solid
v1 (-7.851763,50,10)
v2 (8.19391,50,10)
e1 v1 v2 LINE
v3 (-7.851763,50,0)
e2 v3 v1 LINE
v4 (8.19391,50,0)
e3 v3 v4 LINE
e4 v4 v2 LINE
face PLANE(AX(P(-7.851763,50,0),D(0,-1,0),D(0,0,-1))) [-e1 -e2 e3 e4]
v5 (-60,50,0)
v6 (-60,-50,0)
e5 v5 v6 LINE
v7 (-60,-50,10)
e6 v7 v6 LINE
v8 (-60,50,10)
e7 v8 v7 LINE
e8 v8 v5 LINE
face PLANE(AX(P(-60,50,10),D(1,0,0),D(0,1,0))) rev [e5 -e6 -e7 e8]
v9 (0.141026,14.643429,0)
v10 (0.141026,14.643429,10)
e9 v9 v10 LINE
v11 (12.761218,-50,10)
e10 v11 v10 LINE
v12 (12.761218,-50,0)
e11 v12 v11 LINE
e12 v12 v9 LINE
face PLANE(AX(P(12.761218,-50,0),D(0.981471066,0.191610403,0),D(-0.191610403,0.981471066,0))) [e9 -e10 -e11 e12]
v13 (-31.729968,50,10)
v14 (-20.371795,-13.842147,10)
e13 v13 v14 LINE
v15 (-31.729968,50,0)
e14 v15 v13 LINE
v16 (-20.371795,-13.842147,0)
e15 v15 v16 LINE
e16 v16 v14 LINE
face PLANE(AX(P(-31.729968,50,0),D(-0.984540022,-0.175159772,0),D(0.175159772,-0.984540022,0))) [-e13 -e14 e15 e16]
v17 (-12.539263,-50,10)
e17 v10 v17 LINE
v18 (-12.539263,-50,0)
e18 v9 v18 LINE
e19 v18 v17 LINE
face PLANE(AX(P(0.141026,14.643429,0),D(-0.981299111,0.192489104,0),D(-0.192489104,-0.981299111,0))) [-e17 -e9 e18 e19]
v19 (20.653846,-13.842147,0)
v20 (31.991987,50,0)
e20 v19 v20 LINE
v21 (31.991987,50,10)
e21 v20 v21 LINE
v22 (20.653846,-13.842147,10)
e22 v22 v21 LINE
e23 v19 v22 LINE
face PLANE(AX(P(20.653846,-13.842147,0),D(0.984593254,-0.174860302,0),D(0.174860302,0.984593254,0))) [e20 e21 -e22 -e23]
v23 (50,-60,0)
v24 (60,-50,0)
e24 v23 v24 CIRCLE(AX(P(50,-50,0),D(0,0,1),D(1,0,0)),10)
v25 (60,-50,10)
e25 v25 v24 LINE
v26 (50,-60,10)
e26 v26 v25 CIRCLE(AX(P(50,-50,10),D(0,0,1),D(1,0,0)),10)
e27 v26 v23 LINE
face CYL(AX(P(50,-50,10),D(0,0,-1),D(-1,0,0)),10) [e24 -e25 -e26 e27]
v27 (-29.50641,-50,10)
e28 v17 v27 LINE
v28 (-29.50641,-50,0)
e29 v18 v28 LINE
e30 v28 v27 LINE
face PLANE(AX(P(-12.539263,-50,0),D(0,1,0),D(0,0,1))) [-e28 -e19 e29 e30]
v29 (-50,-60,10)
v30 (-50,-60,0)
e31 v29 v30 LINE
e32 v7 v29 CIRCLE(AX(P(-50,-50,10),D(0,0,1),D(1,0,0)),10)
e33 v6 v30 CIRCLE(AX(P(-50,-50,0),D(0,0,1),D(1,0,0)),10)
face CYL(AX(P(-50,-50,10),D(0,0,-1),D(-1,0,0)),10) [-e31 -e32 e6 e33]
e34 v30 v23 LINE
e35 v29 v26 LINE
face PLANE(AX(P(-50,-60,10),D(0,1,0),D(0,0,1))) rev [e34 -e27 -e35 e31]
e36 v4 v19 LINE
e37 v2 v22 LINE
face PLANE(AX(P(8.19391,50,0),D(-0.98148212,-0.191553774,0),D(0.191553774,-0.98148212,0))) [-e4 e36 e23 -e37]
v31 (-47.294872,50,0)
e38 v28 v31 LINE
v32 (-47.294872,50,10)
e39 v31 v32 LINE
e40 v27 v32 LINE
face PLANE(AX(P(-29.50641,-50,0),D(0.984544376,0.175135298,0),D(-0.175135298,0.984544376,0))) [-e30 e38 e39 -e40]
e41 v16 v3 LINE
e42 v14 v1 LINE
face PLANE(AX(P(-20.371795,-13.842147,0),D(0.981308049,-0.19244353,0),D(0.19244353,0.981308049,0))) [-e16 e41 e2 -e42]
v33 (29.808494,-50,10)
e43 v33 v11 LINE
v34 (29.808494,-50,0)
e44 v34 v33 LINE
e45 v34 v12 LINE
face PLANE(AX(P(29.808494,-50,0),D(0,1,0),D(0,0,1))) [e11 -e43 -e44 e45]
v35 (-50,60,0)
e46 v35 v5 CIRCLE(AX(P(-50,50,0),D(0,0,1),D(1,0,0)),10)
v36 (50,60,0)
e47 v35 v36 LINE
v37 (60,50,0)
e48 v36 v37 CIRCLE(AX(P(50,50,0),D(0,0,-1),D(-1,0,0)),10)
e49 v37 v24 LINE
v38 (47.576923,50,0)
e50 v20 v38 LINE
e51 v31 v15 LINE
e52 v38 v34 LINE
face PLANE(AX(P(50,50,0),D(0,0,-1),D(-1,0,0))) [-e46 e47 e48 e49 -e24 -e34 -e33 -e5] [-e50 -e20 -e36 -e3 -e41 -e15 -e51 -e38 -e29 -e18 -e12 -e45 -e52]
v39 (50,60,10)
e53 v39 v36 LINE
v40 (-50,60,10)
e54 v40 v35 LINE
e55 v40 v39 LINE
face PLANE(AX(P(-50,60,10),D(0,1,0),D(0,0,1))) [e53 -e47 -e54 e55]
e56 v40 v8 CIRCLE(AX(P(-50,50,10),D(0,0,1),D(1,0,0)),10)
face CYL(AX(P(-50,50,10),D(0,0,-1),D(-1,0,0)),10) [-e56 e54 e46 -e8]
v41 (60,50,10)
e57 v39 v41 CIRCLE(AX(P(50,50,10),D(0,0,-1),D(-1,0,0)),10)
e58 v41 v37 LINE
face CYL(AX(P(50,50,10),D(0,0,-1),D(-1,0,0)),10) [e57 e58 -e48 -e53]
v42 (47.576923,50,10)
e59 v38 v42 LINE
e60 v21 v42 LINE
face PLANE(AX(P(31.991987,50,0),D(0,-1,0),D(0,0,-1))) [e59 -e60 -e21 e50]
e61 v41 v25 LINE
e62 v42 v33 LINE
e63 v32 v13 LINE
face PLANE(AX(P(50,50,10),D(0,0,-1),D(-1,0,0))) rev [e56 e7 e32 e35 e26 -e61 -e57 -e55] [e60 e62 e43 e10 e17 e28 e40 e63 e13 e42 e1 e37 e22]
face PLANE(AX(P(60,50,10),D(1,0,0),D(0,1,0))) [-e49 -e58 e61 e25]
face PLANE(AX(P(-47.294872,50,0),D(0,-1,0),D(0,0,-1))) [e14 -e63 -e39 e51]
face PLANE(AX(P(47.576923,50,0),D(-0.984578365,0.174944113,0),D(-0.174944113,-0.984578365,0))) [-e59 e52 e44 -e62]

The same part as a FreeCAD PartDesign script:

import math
import FreeCAD as App
import Part
import Sketcher


def add_polygon(sketch, points):
    """Adds a closed chain of lines whose ends are joined by coincident constraints."""
    first, n = sketch.GeometryCount, len(points)
    for a, b in zip(points, points[1:] + points[:1]):
        sketch.addGeometry(Part.LineSegment(App.Vector(*a, 0), App.Vector(*b, 0)), False)
    for i in range(n):
        sketch.addConstraint(Sketcher.Constraint("Coincident", first + i, 2, first + (i + 1) % n, 1))

doc = App.newDocument("Part")
body = doc.addObject("PartDesign::Body", "Body")

# Sketch on XY plane
sketch1 = body.newObject("Sketcher::SketchObject", "Sketch")
sketch1.AttachmentSupport = (doc.getObject("XY_Plane"), [""])
sketch1.MapMode = "FlatFace"
sketch1.addGeometry(Part.LineSegment(App.Vector(50, 60, 0), App.Vector(-50, 60, 0)), False)
sketch1.addGeometry(Part.ArcOfCircle(Part.Circle(App.Vector(-50, 50, 0), App.Vector(0, 0, 1), 10), math.radians(90), math.radians(180)), False)
sketch1.addGeometry(Part.LineSegment(App.Vector(-60, 50, 0), App.Vector(-60, -50, 0)), False)
sketch1.addGeometry(Part.ArcOfCircle(Part.Circle(App.Vector(-50, -50, 0), App.Vector(0, 0, 1), 10), math.radians(180), math.radians(270)), False)
sketch1.addGeometry(Part.LineSegment(App.Vector(-50, -60, 0), App.Vector(50, -60, 0)), False)
sketch1.addGeometry(Part.ArcOfCircle(Part.Circle(App.Vector(50, -50, 0), App.Vector(0, 0, 1), 10), math.radians(-90), math.radians(0)), False)
sketch1.addGeometry(Part.LineSegment(App.Vector(60, -50, 0), App.Vector(60, 50, 0)), False)
sketch1.addGeometry(Part.ArcOfCircle(Part.Circle(App.Vector(50, 50, 0), App.Vector(0, 0, 1), 10), math.radians(0), math.radians(90)), False)
sketch1.addConstraint(Sketcher.Constraint("Tangent", 0, 2, 1, 1))
sketch1.addConstraint(Sketcher.Constraint("Tangent", 1, 2, 2, 1))
sketch1.addConstraint(Sketcher.Constraint("Tangent", 2, 2, 3, 1))
sketch1.addConstraint(Sketcher.Constraint("Tangent", 3, 2, 4, 1))
sketch1.addConstraint(Sketcher.Constraint("Tangent", 4, 2, 5, 1))
sketch1.addConstraint(Sketcher.Constraint("Tangent", 5, 2, 6, 1))
sketch1.addConstraint(Sketcher.Constraint("Tangent", 6, 2, 7, 1))
sketch1.addConstraint(Sketcher.Constraint("Tangent", 7, 2, 0, 1))
sketch1.addConstraint(Sketcher.Constraint("Horizontal", 0))
sketch1.addConstraint(Sketcher.Constraint("Vertical", 2))
sketch1.addConstraint(Sketcher.Constraint("Horizontal", 4))
sketch1.addConstraint(Sketcher.Constraint("Vertical", 6))
sketch1.addConstraint(Sketcher.Constraint("Equal", 1, 3))
sketch1.addConstraint(Sketcher.Constraint("Equal", 3, 5))
sketch1.addConstraint(Sketcher.Constraint("Equal", 5, 7))
sketch1.addConstraint(Sketcher.Constraint("Symmetric", 1, 3, 5, 3, -1, 1))
sketch1.addConstraint(Sketcher.Constraint("Equal", 4, 2))
sketch1.addConstraint(Sketcher.Constraint("Radius", 1, 10.0))
sketch1.addConstraint(Sketcher.Constraint("DistanceX", 0, 2, 0, 1, 100.0))
pad1 = body.newObject("PartDesign::Pad", "Pad")
pad1.Profile = sketch1
pad1.Length = 10

# Sketch on XY plane
sketch2 = body.newObject("Sketcher::SketchObject", "Sketch001")
sketch2.AttachmentSupport = (doc.getObject("XY_Plane"), [""])
sketch2.MapMode = "FlatFace"
sketch2.AttachmentOffset = App.Placement(App.Vector(0, 0, 10), App.Rotation())
add_polygon(sketch2, [(-32, 50), (-47, 50), (-30, -50), (-13, -50), (0, 15), (13, -50), (30, -50), (48, 50), (32, 50), (21, -14), (8, 50), (-8, 50), (-20, -14)])  # lines 0-12
sketch2.addConstraint(Sketcher.Constraint("Horizontal", 0))
sketch2.addConstraint(Sketcher.Constraint("Horizontal", 2))
sketch2.addConstraint(Sketcher.Constraint("Horizontal", 5))
sketch2.addConstraint(Sketcher.Constraint("Horizontal", 7))
sketch2.addConstraint(Sketcher.Constraint("Horizontal", 10))
sketch2.addConstraint(Sketcher.Constraint("Horizontal", 2, 2, 4, 2))
sketch2.addConstraint(Sketcher.Constraint("Horizontal", 0, 2, 6, 2))
sketch2.addConstraint(Sketcher.Constraint("Horizontal", 7, 2, 9, 2))
sketch2.addConstraint(Sketcher.Constraint("Horizontal", 8, 2, 11, 2))
sketch2.addConstraint(Sketcher.Constraint("DistanceY", -1, 1, 0, 2, 50.0))
sketch2.addConstraint(Sketcher.Constraint("DistanceY", 1, 2, -1, 1, 50.0))
sketch2.addConstraint(Sketcher.Constraint("Distance", 6, 101.566319))
sketch2.addConstraint(Sketcher.Constraint("Distance", 8, 64.841138))
sketch2.addConstraint(Sketcher.Constraint("DistanceX", 0, 2, 0, 1, 15.564904))
sketch2.addConstraint(Sketcher.Constraint("DistanceX", 2, 1, 2, 2, 16.967147))
sketch2.addConstraint(Sketcher.Constraint("DistanceX", 5, 1, 5, 2, 17.047276))
sketch2.addConstraint(Sketcher.Constraint("DistanceX", 7, 2, 7, 1, 15.584936))
sketch2.addConstraint(Sketcher.Constraint("DistanceX", 10, 2, 10, 1, 16.045673))
sketch2.addConstraint(Sketcher.Constraint("DistanceX", 0, 2, -1, 1, 47.294872))
sketch2.addConstraint(Sketcher.Constraint("DistanceX", 1, 2, -1, 1, 29.50641))
sketch2.addConstraint(Sketcher.Constraint("DistanceY", -1, 1, 3, 2, 14.643429))
sketch2.addConstraint(Sketcher.Constraint("DistanceX", -1, 1, 9, 2, 8.19391))
sketch2.addConstraint(Sketcher.Constraint("DistanceX", 2, 2, 3, 2, 12.680288))
sketch2.addConstraint(Sketcher.Constraint("DistanceX", 2, 2, 4, 2, 25.300481))
sketch2.addConstraint(Sketcher.Constraint("DistanceX", 3, 2, 8, 2, 20.512821))
sketch2.addConstraint(Sketcher.Constraint("DistanceX", 11, 2, 3, 2, 20.512821))
pocket1 = body.newObject("PartDesign::Pocket", "Pocket")
pocket1.Profile = sketch2
pocket1.Length = 10

doc.recompute()
